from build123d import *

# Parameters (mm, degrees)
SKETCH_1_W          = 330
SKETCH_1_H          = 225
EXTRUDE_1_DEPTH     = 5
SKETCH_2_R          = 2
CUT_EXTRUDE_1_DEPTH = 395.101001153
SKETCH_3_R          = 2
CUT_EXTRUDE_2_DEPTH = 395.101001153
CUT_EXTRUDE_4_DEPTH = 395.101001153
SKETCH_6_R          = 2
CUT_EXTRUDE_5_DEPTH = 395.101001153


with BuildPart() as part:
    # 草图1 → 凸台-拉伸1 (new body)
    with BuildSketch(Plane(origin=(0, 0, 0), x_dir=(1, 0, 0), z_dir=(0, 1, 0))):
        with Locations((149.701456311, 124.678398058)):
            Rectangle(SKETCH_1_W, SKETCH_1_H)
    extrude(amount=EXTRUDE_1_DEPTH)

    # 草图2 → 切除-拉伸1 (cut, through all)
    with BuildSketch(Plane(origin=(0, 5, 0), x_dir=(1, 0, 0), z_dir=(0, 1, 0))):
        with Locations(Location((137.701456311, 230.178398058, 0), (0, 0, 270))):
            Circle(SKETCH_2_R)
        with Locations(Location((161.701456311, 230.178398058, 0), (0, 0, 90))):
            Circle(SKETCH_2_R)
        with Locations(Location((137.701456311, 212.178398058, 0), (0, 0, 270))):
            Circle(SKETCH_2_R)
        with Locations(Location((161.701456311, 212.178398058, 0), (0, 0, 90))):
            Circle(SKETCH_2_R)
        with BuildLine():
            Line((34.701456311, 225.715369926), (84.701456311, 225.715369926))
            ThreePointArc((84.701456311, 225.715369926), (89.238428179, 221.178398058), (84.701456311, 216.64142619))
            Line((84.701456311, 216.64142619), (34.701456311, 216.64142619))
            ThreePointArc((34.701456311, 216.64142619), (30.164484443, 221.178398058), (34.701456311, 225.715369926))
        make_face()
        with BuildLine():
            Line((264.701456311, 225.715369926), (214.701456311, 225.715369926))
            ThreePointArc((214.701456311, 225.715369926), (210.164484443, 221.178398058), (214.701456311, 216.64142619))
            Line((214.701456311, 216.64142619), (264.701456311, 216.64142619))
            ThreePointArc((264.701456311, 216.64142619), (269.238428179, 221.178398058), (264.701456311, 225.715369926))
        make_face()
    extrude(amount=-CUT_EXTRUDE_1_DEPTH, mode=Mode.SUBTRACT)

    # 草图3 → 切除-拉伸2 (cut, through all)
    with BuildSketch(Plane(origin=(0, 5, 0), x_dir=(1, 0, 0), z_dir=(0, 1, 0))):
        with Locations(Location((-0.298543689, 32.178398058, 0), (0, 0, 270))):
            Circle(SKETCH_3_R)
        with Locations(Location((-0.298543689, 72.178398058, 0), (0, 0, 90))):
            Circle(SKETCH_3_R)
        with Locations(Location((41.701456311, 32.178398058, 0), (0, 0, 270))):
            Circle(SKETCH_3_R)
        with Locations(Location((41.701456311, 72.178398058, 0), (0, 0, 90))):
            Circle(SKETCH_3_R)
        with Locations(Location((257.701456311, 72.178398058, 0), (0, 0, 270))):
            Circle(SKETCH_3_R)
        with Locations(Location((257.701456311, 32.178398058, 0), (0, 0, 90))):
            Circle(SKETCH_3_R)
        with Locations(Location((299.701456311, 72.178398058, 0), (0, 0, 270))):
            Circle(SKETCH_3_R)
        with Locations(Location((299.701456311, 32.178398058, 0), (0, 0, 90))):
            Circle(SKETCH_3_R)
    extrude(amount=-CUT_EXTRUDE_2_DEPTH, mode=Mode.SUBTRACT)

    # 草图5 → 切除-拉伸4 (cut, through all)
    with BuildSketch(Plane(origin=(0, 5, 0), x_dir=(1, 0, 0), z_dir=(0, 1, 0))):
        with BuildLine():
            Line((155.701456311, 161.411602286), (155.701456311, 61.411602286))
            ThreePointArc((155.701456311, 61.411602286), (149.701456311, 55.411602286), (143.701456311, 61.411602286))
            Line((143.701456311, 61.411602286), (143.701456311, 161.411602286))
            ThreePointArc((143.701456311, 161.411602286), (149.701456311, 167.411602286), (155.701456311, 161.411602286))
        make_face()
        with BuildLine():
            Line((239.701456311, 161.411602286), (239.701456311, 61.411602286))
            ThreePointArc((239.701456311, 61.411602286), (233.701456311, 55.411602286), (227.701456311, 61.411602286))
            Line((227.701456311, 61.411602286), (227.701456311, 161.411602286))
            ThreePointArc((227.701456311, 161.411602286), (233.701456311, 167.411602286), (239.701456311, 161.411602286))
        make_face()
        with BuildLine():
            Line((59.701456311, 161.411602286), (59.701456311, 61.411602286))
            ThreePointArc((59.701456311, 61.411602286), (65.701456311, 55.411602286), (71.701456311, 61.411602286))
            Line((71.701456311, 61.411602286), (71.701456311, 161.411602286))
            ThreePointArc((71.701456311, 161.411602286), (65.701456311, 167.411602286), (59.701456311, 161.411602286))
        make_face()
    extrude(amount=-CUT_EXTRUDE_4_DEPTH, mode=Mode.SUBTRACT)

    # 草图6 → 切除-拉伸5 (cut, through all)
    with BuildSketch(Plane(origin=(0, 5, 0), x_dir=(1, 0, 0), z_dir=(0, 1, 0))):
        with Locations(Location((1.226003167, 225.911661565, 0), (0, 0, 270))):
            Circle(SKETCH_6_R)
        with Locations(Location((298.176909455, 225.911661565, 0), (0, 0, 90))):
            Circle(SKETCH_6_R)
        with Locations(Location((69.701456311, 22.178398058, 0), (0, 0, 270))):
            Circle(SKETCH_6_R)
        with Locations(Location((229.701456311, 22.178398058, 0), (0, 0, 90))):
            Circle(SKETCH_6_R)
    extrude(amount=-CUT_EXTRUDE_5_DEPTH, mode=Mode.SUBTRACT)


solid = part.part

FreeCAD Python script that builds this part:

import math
import FreeCAD as App
import Part
import Sketcher
from FreeCAD import Vector
Q = App.Units.Quantity

doc = App.newDocument("Part")
body = doc.addObject("PartDesign::Body", "Body")

# Sketch on XZ plane
sketch1 = body.newObject("Sketcher::SketchObject", "Sketch")
sketch1.AttachmentSupport = (doc.getObject("XZ_Plane"), [""])
sketch1.MapMode = "FlatFace"
sketch1.addGeometry([
    Part.LineSegment(Vector(-15, -237, 0), Vector(-15, -12, 0)),
    Part.LineSegment(Vector(-15, -12, 0), Vector(315, -12, 0)),
    Part.LineSegment(Vector(315, -12, 0), Vector(315, -237, 0)),
    Part.LineSegment(Vector(315, -237, 0), Vector(-15, -237, 0)),
], False)
sketch1.addConstraint([
    Sketcher.Constraint("Coincident", 0, 2, 1, 1),
    Sketcher.Constraint("Coincident", 1, 2, 2, 1),
    Sketcher.Constraint("Coincident", 2, 2, 3, 1),
    Sketcher.Constraint("Coincident", 3, 2, 0, 1),
    Sketcher.Constraint("Vertical", 0),
    Sketcher.Constraint("Horizontal", 1),
    Sketcher.Constraint("Vertical", 2),
    Sketcher.Constraint("Horizontal", 3),
    Sketcher.Constraint("DistanceX", 1, 1, 1, 2, Q("330 mm")),
    Sketcher.Constraint("DistanceY", 0, 1, 0, 2, Q("225 mm")),
    Sketcher.Constraint("DistanceY", 0, 2, -1, 1, Q("12.178398 mm")),
    Sketcher.Constraint("DistanceX", 0, 2, -1, 1, Q("15.298544 mm")),
])
pad1 = body.newObject("PartDesign::Pad", "Pad")
pad1.Profile = sketch1
pad1.Length = 5
pad1.Reversed = True

# Sketch on XZ plane
sketch2 = body.newObject("Sketcher::SketchObject", "Sketch001")
sketch2.AttachmentSupport = (doc.getObject("XZ_Plane"), [""])
sketch2.MapMode = "FlatFace"
sketch2.AttachmentOffset = App.Placement(Vector(0, 0, -5), App.Rotation())
sketch2.addGeometry([
    Part.Circle(Vector(137.7, -230.2, 0), Vector(0, 0, 1), 2),  # 0
    Part.Circle(Vector(161.7, -230.2, 0), Vector(0, 0, 1), 2),  # 1
    Part.Circle(Vector(137.7, -212.2, 0), Vector(0, 0, 1), 2),  # 2
    Part.Circle(Vector(161.7, -212.2, 0), Vector(0, 0, 1), 2),  # 3
    Part.LineSegment(Vector(84.7, -225.7, 0), Vector(34.7, -225.7, 0)),  # 4
    Part.ArcOfCircle(Part.Circle(Vector(34.7, -221.2, 0), Vector(0, 0, 1), 4.5), math.radians(90), math.radians(270)),  # 5
    Part.LineSegment(Vector(34.7, -216.6, 0), Vector(84.7, -216.6, 0)),  # 6
    Part.ArcOfCircle(Part.Circle(Vector(84.7, -221.2, 0), Vector(0, 0, 1), 4.5), math.radians(-90), math.radians(90)),  # 7
    Part.LineSegment(Vector(264.7, -225.7, 0), Vector(214.7, -225.7, 0)),  # 8
    Part.ArcOfCircle(Part.Circle(Vector(214.7, -221.2, 0), Vector(0, 0, 1), 4.5), math.radians(90), math.radians(270)),  # 9
    Part.LineSegment(Vector(214.7, -216.6, 0), Vector(264.7, -216.6, 0)),  # 10
    Part.ArcOfCircle(Part.Circle(Vector(264.7, -221.2, 0), Vector(0, 0, 1), 4.5), math.radians(-90), math.radians(90)),  # 11
], False)
sketch2.addConstraint([
    Sketcher.Constraint("Tangent", 4, 2, 5, 2),
    Sketcher.Constraint("Tangent", 5, 1, 6, 1),
    Sketcher.Constraint("Tangent", 6, 2, 7, 2),
    Sketcher.Constraint("Tangent", 7, 1, 4, 1),
    Sketcher.Constraint("Tangent", 8, 2, 9, 2),
    Sketcher.Constraint("Tangent", 9, 1, 10, 1),
    Sketcher.Constraint("Tangent", 10, 2, 11, 2),
    Sketcher.Constraint("Tangent", 11, 1, 8, 1),
    Sketcher.Constraint("Horizontal", 4),
    Sketcher.Constraint("Horizontal", 6),
    Sketcher.Constraint("Horizontal", 8),
    Sketcher.Constraint("Horizontal", 10),
    Sketcher.Constraint("Equal", 0, 1),
    Sketcher.Constraint("Equal", 1, 2),
    Sketcher.Constraint("Equal", 2, 3),
    Sketcher.Constraint("Equal", 7, 9),
    Sketcher.Constraint("Horizontal", 0, 3, 1, 3),
    Sketcher.Constraint("Horizontal", 2, 3, 3, 3),
    Sketcher.Constraint("Horizontal", 7, 3, 9, 3),
    Sketcher.Constraint("Vertical", 0, 3, 2, 3),
    Sketcher.Constraint("Vertical", 1, 3, 3, 3),
    Sketcher.Constraint("Equal", 6, 8),
    Sketcher.Constraint("Diameter", 0, Q("4 mm")),
    Sketcher.Constraint("DistanceX", 4, 2, 4, 1, Q("50 mm")),
    Sketcher.Constraint("DistanceX", 0, 3, 1, 3, Q("24 mm")),
    Sketcher.Constraint("DistanceY", 0, 3, 2, 3, Q("18 mm")),
    Sketcher.Constraint("DistanceX", 5, 3, 0, 3, Q("103 mm")),
    Sketcher.Constraint("DistanceY", 0, 3, 5, 3, Q("9 mm")),
    Sketcher.Constraint("DistanceX", 1, 3, 9, 3, Q("53 mm")),
    Sketcher.Constraint("Radius", 5, Q("4.536972 mm")),
    Sketcher.Constraint("DistanceY", 0, 3, -1, 1, Q("230.178398 mm")),
    Sketcher.Constraint("DistanceX", -1, 1, 0, 3, Q("137.701456 mm")),
])
pocket1 = body.newObject("PartDesign::Pocket", "Pocket")
pocket1.Profile = sketch2
pocket1.Type = "ThroughAll"
pocket1.Reversed = True

# Sketch on XZ plane
sketch3 = body.newObject("Sketcher::SketchObject", "Sketch002")
sketch3.AttachmentSupport = (doc.getObject("XZ_Plane"), [""])
sketch3.MapMode = "FlatFace"
sketch3.AttachmentOffset = App.Placement(Vector(0, 0, -5), App.Rotation())
sketch3.addGeometry([
    Part.Circle(Vector(-0.3, -32.2, 0), Vector(0, 0, 1), 2),  # 0
    Part.Circle(Vector(-0.3, -72.2, 0), Vector(0, 0, 1), 2),  # 1
    Part.Circle(Vector(41.7, -32.2, 0), Vector(0, 0, 1), 2),  # 2
    Part.Circle(Vector(41.7, -72.2, 0), Vector(0, 0, 1), 2),  # 3
    Part.Circle(Vector(257.7, -72.2, 0), Vector(0, 0, 1), 2),  # 4
    Part.Circle(Vector(257.7, -32.2, 0), Vector(0, 0, 1), 2),  # 5
    Part.Circle(Vector(299.7, -72.2, 0), Vector(0, 0, 1), 2),  # 6
    Part.Circle(Vector(299.7, -32.2, 0), Vector(0, 0, 1), 2),  # 7
], False)
sketch3.addConstraint([
    Sketcher.Constraint("Equal", 0, 1),
    Sketcher.Constraint("Equal", 1, 2),
    Sketcher.Constraint("Equal", 2, 3),
    Sketcher.Constraint("Equal", 3, 4),
    Sketcher.Constraint("Equal", 4, 5),
    Sketcher.Constraint("Equal", 5, 6),
    Sketcher.Constraint("Equal", 6, 7),
    Sketcher.Constraint("Horizontal", 0, 3, 2, 3),
    Sketcher.Constraint("Horizontal", 1, 3, 3, 3),
    Sketcher.Constraint("Horizontal", 3, 3, 4, 3),
    Sketcher.Constraint("Horizontal", 2, 3, 5, 3),
    Sketcher.Constraint("Horizontal", 4, 3, 6, 3),
    Sketcher.Constraint("Horizontal", 5, 3, 7, 3),
    Sketcher.Constraint("Vertical", 0, 3, 1, 3),
    Sketcher.Constraint("Vertical", 2, 3, 3, 3),
    Sketcher.Constraint("Vertical", 4, 3, 5, 3),
    Sketcher.Constraint("Vertical", 6, 3, 7, 3),
    Sketcher.Constraint("Diameter", 0, Q("4 mm")),
    Sketcher.Constraint("DistanceY", 1, 3, 0, 3, Q("40 mm")),
    Sketcher.Constraint("DistanceX", 0, 3, 2, 3, Q("42 mm")),
    Sketcher.Constraint("DistanceX", 3, 3, 4, 3, Q("216 mm")),
    Sketcher.Constraint("DistanceX", 4, 3, 6, 3, Q("42 mm")),
    Sketcher.Constraint("DistanceY", 0, 3, -1, 1, Q("32.178398 mm")),
    Sketcher.Constraint("DistanceX", 0, 3, -1, 1, Q("0.298544 mm")),
])
pocket2 = body.newObject("PartDesign::Pocket", "Pocket001")
pocket2.Profile = sketch3
pocket2.Type = "ThroughAll"
pocket2.Reversed = True

# Sketch on XZ plane
sketch4 = body.newObject("Sketcher::SketchObject", "Sketch003")
sketch4.AttachmentSupport = (doc.getObject("XZ_Plane"), [""])
sketch4.MapMode = "FlatFace"
sketch4.AttachmentOffset = App.Placement(Vector(0, 0, -5), App.Rotation())
sketch4.addGeometry([
    Part.LineSegment(Vector(156, -61, 0), Vector(156, -161, 0)),  # 0
    Part.ArcOfCircle(Part.Circle(Vector(150, -161, 0), Vector(0, 0, 1), 6), math.radians(180), math.radians(360)),  # 1
    Part.LineSegment(Vector(144, -161, 0), Vector(144, -61, 0)),  # 2
    Part.ArcOfCircle(Part.Circle(Vector(150, -61, 0), Vector(0, 0, 1), 6), math.radians(0), math.radians(180)),  # 3
    Part.LineSegment(Vector(240, -61, 0), Vector(240, -161, 0)),  # 4
    Part.ArcOfCircle(Part.Circle(Vector(234, -161, 0), Vector(0, 0, 1), 6), math.radians(180), math.radians(360)),  # 5
    Part.LineSegment(Vector(228, -161, 0), Vector(228, -61, 0)),  # 6
    Part.ArcOfCircle(Part.Circle(Vector(234, -61, 0), Vector(0, 0, 1), 6), math.radians(0), math.radians(180)),  # 7
    Part.LineSegment(Vector(60, -161, 0), Vector(60, -61, 0)),  # 8
    Part.ArcOfCircle(Part.Circle(Vector(66, -61, 0), Vector(0, 0, 1), 6), math.radians(0), math.radians(180)),  # 9
    Part.LineSegment(Vector(72, -61, 0), Vector(72, -161, 0)),  # 10
    Part.ArcOfCircle(Part.Circle(Vector(66, -161, 0), Vector(0, 0, 1), 6), math.radians(180), math.radians(360)),  # 11
], False)
sketch4.addConstraint([
    Sketcher.Constraint("Tangent", 0, 2, 1, 2),
    Sketcher.Constraint("Tangent", 1, 1, 2, 1),
    Sketcher.Constraint("Tangent", 2, 2, 3, 2),
    Sketcher.Constraint("Tangent", 3, 1, 0, 1),
    Sketcher.Constraint("Tangent", 4, 2, 5, 2),
    Sketcher.Constraint("Tangent", 5, 1, 6, 1),
    Sketcher.Constraint("Tangent", 6, 2, 7, 2),
    Sketcher.Constraint("Tangent", 7, 1, 4, 1),
    Sketcher.Constraint("Tangent", 8, 2, 9, 2),
    Sketcher.Constraint("Tangent", 9, 1, 10, 1),
    Sketcher.Constraint("Tangent", 10, 2, 11, 2),
    Sketcher.Constraint("Tangent", 11, 1, 8, 1),
    Sketcher.Constraint("Vertical", 0),
    Sketcher.Constraint("Vertical", 2),
    Sketcher.Constraint("Vertical", 4),
    Sketcher.Constraint("Vertical", 6),
    Sketcher.Constraint("Vertical", 8),
    Sketcher.Constraint("Vertical", 10),
    Sketcher.Constraint("Equal", 3, 5),
    Sketcher.Constraint("Equal", 7, 9),
    Sketcher.Constraint("Horizontal", 1, 3, 5, 3),
    Sketcher.Constraint("Horizontal", 3, 3, 7, 3),
    Sketcher.Constraint("Horizontal", 7, 3, 9, 3),
    Sketcher.Constraint("Horizontal", 5, 3, 11, 3),
    Sketcher.Constraint("Radius", 1, Q("6 mm")),
    Sketcher.Constraint("DistanceY", 0, 2, 0, 1, Q("100 mm")),
    Sketcher.Constraint("DistanceX", 1, 3, 5, 3, Q("84 mm")),
    Sketcher.Constraint("DistanceX", 9, 3, 3, 3, Q("84 mm")),
    Sketcher.Constraint("DistanceX", -1, 1, 1, 3, Q("149.701456 mm")),
    Sketcher.Constraint("DistanceY", 1, 3, -1, 1, Q("161.411602 mm")),
])
pocket3 = body.newObject("PartDesign::Pocket", "Pocket002")
pocket3.Profile = sketch4
pocket3.Type = "ThroughAll"
pocket3.Reversed = True

# Sketch on XZ plane
sketch5 = body.newObject("Sketcher::SketchObject", "Sketch004")
sketch5.AttachmentSupport = (doc.getObject("XZ_Plane"), [""])
sketch5.MapMode = "FlatFace"
sketch5.AttachmentOffset = App.Placement(Vector(0, 0, -5), App.Rotation())
sketch5.addGeometry([
    Part.Circle(Vector(1.2, -225.9, 0), Vector(0, 0, 1), 2),
    Part.Circle(Vector(298.2, -225.9, 0), Vector(0, 0, 1), 2),
    Part.Circle(Vector(69.7, -22.2, 0), Vector(0, 0, 1), 2),
    Part.Circle(Vector(229.7, -22.2, 0), Vector(0, 0, 1), 2),
], False)
sketch5.addConstraint([
    Sketcher.Constraint("Equal", 0, 1),
    Sketcher.Constraint("Equal", 1, 2),
    Sketcher.Constraint("Equal", 2, 3),
    Sketcher.Constraint("Horizontal", 0, 3, 1, 3),
    Sketcher.Constraint("Horizontal", 2, 3, 3, 3),
    Sketcher.Constraint("Diameter", 0, Q("4 mm")),
    Sketcher.Constraint("DistanceX", 2, 3, 3, 3, Q("160 mm")),
    Sketcher.Constraint("DistanceY", 2, 3, -1, 1, Q("22.178398 mm")),
    Sketcher.Constraint("DistanceY", 0, 3, -1, 1, Q("225.911662 mm")),
    Sketcher.Constraint("DistanceX", -1, 1, 1, 3, Q("298.176909 mm")),
    Sketcher.Constraint("DistanceX", -1, 1, 0, 3, Q("1.226003 mm")),
    Sketcher.Constraint("DistanceX", -1, 1, 2, 3, Q("69.701456 mm")),
])
pocket4 = body.newObject("PartDesign::Pocket", "Pocket003")
pocket4.Profile = sketch5
pocket4.Type = "ThroughAll"
pocket4.Reversed = True

doc.recompute()
